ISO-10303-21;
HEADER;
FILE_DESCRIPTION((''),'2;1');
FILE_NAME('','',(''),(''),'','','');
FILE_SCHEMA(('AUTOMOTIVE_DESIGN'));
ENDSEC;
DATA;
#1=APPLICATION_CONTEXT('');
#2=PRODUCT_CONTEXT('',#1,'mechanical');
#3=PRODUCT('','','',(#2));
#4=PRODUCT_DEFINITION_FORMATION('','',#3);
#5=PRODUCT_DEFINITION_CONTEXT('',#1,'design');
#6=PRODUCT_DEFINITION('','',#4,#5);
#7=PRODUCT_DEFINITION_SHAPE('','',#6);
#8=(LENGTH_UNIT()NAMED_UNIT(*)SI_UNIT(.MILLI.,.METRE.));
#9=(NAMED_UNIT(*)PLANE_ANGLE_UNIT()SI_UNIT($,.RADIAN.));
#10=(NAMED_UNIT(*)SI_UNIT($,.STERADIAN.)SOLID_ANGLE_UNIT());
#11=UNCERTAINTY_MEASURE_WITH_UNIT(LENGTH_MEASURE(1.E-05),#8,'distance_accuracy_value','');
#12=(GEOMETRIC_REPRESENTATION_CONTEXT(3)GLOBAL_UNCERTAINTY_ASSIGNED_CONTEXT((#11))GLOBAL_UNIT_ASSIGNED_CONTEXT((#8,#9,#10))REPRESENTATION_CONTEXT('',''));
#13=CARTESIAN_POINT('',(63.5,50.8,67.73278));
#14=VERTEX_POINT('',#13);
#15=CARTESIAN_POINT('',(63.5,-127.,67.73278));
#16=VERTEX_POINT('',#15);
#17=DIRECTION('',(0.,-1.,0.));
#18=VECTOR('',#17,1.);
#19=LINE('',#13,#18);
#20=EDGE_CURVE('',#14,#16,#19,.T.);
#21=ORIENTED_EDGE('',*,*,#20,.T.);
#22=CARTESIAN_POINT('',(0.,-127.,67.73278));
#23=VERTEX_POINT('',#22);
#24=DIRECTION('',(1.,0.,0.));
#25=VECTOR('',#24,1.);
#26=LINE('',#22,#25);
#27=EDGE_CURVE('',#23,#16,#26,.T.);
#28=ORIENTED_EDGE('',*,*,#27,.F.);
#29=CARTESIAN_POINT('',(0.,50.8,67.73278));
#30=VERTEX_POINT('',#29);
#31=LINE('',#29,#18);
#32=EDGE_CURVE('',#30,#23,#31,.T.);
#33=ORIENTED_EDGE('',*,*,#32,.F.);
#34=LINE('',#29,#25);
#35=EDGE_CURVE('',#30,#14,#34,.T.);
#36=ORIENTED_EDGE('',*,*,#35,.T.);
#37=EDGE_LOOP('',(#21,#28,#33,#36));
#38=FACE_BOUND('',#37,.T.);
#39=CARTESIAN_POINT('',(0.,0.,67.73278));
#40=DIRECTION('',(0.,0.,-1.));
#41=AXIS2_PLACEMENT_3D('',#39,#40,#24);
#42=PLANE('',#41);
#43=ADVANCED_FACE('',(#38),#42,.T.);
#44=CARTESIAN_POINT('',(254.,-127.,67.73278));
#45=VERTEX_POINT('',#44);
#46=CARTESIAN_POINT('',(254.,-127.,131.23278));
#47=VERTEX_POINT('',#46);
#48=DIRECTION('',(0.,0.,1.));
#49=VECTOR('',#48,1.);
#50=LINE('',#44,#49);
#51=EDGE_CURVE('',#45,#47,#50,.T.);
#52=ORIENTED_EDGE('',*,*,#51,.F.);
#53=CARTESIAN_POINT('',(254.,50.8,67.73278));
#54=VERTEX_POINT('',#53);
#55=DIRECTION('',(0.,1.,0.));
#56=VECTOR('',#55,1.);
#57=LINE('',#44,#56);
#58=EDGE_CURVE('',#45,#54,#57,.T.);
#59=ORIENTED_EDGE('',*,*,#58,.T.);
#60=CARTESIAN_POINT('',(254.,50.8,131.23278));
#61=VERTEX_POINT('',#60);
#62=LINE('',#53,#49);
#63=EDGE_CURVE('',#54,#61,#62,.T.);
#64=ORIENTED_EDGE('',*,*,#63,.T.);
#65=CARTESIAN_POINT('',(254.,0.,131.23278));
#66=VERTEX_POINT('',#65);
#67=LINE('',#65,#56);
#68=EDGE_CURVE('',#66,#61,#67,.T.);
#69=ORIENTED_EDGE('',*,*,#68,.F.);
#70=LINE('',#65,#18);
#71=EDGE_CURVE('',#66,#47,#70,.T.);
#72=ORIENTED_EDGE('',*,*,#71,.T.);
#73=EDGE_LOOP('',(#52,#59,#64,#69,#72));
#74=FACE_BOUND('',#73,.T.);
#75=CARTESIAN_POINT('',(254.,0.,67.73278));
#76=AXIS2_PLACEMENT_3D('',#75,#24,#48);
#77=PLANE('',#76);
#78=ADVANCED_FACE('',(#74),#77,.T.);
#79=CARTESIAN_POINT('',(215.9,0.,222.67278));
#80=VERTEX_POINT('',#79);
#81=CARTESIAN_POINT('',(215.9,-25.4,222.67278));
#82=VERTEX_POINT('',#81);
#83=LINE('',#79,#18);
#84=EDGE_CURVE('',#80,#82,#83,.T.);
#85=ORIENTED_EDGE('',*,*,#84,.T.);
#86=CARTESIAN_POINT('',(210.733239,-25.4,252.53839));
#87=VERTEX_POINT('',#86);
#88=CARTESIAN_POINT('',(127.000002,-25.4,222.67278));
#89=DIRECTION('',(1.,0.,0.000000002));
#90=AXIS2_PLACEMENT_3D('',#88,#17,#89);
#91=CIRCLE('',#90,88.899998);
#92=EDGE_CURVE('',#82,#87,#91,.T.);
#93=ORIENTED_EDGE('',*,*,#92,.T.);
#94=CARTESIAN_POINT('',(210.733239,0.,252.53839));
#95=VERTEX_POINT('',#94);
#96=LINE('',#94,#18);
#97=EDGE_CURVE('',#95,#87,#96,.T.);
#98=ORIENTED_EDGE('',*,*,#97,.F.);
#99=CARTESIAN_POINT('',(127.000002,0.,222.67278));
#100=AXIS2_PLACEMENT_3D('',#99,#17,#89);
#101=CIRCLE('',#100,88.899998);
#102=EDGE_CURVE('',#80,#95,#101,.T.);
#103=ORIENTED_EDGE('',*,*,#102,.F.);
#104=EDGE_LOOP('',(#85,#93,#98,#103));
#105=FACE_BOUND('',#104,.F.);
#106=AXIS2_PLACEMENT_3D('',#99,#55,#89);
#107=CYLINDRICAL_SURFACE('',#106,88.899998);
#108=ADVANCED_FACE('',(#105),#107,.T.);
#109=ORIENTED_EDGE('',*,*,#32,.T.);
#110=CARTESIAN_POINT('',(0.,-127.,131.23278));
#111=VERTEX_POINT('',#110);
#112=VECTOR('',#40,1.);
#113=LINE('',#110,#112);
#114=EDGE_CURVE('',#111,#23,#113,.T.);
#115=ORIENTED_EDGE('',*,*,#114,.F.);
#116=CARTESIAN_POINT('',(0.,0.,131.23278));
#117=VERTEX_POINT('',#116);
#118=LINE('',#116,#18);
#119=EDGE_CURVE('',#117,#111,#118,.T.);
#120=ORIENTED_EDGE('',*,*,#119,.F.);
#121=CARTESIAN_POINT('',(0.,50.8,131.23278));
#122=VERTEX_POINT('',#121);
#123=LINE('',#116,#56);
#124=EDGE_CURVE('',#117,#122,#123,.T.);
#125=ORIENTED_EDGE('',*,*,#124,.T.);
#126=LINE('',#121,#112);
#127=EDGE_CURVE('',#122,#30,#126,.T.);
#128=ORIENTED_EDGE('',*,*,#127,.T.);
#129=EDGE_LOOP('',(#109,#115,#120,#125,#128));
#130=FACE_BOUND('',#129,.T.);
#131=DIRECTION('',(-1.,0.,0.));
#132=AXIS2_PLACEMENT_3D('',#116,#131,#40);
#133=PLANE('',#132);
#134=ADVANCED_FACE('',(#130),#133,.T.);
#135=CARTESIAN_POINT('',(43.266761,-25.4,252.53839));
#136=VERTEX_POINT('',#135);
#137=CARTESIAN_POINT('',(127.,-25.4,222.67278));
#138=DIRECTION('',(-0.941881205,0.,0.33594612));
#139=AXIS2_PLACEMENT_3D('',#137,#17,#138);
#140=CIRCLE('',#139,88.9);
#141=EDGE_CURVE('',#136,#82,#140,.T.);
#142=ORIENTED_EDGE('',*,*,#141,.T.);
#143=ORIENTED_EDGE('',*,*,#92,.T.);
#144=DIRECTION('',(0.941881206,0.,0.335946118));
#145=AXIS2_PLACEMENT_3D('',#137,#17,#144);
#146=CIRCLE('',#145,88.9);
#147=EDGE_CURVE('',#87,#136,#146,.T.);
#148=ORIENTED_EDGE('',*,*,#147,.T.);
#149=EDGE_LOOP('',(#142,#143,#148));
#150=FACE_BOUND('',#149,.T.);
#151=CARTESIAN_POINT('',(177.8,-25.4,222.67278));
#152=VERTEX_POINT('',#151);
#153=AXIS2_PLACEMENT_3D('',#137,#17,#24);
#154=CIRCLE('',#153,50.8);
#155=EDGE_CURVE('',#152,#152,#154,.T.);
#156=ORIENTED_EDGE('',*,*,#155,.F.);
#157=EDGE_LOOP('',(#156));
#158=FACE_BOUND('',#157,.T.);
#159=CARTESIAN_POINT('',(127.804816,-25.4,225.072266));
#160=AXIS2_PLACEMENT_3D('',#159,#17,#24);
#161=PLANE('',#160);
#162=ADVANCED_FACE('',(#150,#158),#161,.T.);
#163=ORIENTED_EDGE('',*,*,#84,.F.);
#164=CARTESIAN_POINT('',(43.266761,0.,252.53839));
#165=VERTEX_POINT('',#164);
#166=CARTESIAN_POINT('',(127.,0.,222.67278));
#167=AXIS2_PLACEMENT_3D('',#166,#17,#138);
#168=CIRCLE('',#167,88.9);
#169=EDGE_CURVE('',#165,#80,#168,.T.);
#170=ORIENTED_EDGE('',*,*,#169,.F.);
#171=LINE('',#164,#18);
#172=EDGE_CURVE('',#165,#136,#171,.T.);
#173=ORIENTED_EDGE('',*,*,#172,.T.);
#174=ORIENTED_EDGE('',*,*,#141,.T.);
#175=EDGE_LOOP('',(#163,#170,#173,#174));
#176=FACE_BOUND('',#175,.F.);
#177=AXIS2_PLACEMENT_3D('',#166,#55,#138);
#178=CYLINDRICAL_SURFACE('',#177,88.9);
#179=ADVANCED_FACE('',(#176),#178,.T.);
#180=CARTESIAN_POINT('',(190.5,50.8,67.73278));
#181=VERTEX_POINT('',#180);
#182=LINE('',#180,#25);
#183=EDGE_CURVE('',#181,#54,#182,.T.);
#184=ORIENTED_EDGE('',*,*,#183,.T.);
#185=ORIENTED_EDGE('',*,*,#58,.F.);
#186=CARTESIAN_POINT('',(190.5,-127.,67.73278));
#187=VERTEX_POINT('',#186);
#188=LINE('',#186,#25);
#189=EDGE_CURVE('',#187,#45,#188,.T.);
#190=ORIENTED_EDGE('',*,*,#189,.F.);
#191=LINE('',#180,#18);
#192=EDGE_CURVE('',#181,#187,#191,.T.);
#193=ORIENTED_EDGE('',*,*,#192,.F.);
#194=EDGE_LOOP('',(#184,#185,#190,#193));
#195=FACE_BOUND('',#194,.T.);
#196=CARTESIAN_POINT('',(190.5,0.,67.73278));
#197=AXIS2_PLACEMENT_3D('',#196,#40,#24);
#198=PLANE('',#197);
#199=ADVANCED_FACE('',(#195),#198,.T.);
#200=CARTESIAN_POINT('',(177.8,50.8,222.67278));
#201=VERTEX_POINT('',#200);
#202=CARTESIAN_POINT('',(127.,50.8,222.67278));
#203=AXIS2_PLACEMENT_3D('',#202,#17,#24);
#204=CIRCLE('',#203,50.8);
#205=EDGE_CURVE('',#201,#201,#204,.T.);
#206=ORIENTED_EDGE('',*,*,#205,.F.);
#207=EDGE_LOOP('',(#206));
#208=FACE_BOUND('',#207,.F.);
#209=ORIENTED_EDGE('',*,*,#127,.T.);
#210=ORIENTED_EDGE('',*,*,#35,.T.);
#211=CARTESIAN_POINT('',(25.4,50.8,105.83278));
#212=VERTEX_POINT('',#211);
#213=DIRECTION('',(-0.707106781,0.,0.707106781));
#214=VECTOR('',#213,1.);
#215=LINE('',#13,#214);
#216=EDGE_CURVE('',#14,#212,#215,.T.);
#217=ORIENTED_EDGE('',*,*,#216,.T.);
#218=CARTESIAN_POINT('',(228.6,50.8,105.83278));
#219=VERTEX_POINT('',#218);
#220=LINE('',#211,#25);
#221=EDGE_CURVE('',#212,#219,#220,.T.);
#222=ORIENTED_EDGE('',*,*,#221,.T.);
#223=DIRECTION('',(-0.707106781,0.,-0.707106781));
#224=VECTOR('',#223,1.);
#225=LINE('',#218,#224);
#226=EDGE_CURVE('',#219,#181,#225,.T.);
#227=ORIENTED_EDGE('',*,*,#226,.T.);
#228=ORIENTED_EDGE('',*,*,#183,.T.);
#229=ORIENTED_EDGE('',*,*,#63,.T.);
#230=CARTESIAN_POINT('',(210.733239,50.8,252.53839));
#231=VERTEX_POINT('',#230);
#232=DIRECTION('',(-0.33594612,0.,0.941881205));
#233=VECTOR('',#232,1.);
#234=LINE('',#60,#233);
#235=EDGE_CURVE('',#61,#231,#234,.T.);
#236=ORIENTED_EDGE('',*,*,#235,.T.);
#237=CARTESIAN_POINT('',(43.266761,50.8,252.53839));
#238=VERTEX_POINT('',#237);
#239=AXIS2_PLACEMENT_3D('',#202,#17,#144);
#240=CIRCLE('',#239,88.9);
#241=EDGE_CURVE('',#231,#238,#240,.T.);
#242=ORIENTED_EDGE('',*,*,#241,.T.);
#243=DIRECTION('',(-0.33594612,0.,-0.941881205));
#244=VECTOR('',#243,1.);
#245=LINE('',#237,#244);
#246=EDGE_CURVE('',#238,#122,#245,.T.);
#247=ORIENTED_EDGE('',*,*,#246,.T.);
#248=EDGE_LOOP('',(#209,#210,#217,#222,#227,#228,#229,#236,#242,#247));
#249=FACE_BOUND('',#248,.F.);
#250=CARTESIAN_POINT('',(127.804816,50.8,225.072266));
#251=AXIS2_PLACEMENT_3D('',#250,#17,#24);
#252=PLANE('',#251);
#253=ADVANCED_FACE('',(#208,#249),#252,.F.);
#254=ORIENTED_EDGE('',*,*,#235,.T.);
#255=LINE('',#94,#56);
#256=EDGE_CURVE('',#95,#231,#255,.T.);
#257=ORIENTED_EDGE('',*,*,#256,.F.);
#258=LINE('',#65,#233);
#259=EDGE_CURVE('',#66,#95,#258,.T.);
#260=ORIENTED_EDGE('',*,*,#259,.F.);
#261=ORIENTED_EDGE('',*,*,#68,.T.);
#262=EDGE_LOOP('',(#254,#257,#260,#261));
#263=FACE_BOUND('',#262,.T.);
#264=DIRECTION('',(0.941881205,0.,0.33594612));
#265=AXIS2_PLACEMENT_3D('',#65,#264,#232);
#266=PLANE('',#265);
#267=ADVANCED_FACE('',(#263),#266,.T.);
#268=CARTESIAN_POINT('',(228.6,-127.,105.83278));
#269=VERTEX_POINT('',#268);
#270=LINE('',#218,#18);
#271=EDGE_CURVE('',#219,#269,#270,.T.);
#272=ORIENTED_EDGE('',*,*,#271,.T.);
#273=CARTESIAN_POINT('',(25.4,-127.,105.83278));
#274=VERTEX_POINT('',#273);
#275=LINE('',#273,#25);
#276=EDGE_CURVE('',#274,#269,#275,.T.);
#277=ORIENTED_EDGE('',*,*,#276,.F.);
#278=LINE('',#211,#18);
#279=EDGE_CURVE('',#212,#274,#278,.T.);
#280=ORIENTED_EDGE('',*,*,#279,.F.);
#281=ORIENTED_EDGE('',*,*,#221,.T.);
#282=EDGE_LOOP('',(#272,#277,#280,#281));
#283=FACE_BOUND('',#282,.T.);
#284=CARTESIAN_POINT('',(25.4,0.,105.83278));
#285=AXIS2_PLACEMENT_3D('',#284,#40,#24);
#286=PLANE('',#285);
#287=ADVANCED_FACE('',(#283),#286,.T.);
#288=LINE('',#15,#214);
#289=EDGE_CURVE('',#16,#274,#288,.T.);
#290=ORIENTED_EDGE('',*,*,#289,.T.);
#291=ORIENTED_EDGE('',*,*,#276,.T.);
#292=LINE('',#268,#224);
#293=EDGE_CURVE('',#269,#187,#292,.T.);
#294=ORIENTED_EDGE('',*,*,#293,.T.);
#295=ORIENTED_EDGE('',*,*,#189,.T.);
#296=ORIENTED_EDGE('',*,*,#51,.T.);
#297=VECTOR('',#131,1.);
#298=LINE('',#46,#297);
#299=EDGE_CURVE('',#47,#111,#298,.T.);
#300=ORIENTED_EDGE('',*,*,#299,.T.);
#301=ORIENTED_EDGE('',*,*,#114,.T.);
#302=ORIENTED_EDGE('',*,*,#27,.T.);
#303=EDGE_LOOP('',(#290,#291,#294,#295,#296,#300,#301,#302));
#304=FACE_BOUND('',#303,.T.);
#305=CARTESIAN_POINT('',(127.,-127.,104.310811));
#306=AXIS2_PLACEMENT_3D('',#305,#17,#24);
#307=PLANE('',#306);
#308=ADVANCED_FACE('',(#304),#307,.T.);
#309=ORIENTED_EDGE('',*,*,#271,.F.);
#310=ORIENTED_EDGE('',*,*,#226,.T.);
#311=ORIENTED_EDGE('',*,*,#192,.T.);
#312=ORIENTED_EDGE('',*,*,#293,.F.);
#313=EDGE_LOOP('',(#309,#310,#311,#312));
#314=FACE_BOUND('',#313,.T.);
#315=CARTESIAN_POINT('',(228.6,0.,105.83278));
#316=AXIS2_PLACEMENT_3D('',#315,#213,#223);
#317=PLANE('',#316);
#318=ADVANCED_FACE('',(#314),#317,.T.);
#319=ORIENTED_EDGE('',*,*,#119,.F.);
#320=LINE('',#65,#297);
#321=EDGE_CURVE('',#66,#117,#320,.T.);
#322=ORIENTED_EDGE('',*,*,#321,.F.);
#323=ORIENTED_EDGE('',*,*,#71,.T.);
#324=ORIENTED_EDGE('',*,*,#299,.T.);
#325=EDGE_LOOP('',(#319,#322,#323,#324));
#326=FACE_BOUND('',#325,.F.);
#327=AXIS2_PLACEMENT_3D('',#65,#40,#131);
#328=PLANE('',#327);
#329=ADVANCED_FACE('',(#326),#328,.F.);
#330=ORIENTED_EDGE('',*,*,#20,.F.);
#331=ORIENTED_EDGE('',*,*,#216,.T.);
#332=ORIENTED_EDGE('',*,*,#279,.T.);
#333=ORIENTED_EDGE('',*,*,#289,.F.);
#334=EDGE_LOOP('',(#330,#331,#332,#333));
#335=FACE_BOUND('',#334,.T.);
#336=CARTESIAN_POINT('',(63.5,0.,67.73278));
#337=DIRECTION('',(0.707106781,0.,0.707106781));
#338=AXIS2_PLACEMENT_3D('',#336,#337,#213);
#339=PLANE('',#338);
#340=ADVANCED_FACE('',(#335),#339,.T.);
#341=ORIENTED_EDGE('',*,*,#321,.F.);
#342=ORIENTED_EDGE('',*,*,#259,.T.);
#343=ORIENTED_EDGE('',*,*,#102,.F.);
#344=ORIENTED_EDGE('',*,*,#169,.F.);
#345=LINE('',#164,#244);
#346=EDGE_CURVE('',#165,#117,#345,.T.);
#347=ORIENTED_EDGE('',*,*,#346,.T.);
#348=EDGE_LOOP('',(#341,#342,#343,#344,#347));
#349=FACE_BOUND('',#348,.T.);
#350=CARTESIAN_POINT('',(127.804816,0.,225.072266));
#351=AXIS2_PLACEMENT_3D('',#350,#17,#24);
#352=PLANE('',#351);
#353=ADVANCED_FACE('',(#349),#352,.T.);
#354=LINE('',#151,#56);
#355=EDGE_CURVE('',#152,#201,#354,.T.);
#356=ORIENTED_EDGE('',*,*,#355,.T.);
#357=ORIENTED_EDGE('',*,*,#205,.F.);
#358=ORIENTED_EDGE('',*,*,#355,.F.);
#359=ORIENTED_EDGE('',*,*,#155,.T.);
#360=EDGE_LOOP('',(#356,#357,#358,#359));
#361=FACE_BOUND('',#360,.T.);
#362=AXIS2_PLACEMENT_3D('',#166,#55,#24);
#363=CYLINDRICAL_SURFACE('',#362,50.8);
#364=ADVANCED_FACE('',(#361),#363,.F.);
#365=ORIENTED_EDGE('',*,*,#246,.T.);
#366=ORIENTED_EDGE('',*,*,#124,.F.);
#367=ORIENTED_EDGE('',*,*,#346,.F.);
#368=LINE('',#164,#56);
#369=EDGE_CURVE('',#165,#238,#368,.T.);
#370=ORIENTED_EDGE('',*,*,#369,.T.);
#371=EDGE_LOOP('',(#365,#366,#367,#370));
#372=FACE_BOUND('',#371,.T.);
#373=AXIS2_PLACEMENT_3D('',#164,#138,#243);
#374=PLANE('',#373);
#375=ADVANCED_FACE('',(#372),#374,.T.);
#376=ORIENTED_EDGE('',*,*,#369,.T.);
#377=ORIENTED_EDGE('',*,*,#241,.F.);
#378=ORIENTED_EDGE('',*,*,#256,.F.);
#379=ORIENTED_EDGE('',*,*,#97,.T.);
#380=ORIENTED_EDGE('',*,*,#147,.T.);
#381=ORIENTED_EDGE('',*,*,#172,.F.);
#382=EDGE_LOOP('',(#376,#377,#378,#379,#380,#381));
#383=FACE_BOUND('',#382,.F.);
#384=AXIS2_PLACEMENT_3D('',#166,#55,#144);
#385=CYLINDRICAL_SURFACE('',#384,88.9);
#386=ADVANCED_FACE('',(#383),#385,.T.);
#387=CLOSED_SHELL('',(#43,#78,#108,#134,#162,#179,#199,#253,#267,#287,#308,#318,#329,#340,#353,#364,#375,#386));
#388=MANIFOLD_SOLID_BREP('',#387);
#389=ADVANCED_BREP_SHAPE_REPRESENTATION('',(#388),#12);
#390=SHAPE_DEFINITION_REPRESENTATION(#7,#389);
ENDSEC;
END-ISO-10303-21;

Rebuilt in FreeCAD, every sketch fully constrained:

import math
import FreeCAD as App
import Part
import Sketcher

V = App.Vector
Q = App.Units.Quantity


def add_polygon(sketch, points):
    """Adds a closed chain of lines whose ends are joined by coincident constraints."""
    first, n = sketch.GeometryCount, len(points)
    for a, b in zip(points, points[1:] + points[:1]):
        sketch.addGeometry(Part.LineSegment(App.Vector(*a, 0), App.Vector(*b, 0)), False)
    for i in range(n):
        sketch.addConstraint(Sketcher.Constraint("Coincident", first + i, 2, first + (i + 1) % n, 1))

doc = App.newDocument("Part")
body = doc.addObject("PartDesign::Body", "Body")

sketch1 = body.newObject("Sketcher::SketchObject", "Sketch")
sketch1.AttachmentSupport = (doc.getObject("XZ_Plane"), [""])
sketch1.MapMode = "FlatFace"
add_polygon(sketch1, [(254, 68), (254, 131), (0, 131), (0, 68), (64, 68), (25, 106), (229, 106), (190, 68)])
sketch1.addConstraint([
    Sketcher.Constraint("Vertical", 0),
    Sketcher.Constraint("Horizontal", 1),
    Sketcher.Constraint("Vertical", 2),
    Sketcher.Constraint("Horizontal", 3),
    Sketcher.Constraint("Horizontal", 5),
    Sketcher.Constraint("Horizontal", 7),
    Sketcher.Constraint("PointOnObject", 1, 2, -2),
    Sketcher.Constraint("Perpendicular", 4, 6),
    Sketcher.Constraint("Horizontal", 3, 2, 6, 2),
    Sketcher.Constraint("Equal", 3, 7),
    Sketcher.Constraint("Equal", 7, 0),
    Sketcher.Constraint("Equal", 4, 6),
    Sketcher.Constraint("DistanceX", 1, 2, 1, 1, Q("10 in")),
    Sketcher.Constraint("DistanceX", 5, 1, 5, 2, Q("8 in")),
    Sketcher.Constraint("DistanceX", 3, 1, 3, 2, Q("2.5 in")),
    Sketcher.Constraint("DistanceY", -1, 1, 0, 2, 131.23278),
])
pad1 = body.newObject("PartDesign::Pad", "Pad")
pad1.Profile = sketch1
pad1.Length = Q("5 in")

sketch2 = body.newObject("Sketcher::SketchObject", "Sketch001")
sketch2.AttachmentSupport = (doc.getObject("XZ_Plane"), [""])
sketch2.MapMode = "FlatFace"
sketch2.addGeometry([
    Part.ArcOfCircle(Part.Circle(V(127, 223, 0), V(0, 0, 1), 89), math.radians(20), math.radians(160)),
    Part.LineSegment(V(43, 253, 0), V(0, 131, 0)),
    Part.LineSegment(V(0, 131, 0), V(0, 68, 0)),
    Part.LineSegment(V(0, 68, 0), V(64, 68, 0)),
    Part.LineSegment(V(64, 68, 0), V(25, 106, 0)),
    Part.LineSegment(V(25, 106, 0), V(229, 106, 0)),
    Part.LineSegment(V(229, 106, 0), V(190, 68, 0)),
    Part.LineSegment(V(190, 68, 0), V(254, 68, 0)),
    Part.LineSegment(V(254, 68, 0), V(254, 131, 0)),
    Part.LineSegment(V(254, 131, 0), V(211, 253, 0)),
    Part.Circle(V(127, 223, 0), V(0, 0, 1), 51),
], False)
sketch2.addConstraint([
    Sketcher.Constraint("Tangent", 0, 2, 1, 1),
    Sketcher.Constraint("Coincident", 1, 2, 2, 1),
    Sketcher.Constraint("Coincident", 2, 2, 3, 1),
    Sketcher.Constraint("Coincident", 3, 2, 4, 1),
    Sketcher.Constraint("Coincident", 4, 2, 5, 1),
    Sketcher.Constraint("Coincident", 5, 2, 6, 1),
    Sketcher.Constraint("Coincident", 6, 2, 7, 1),
    Sketcher.Constraint("Coincident", 7, 2, 8, 1),
    Sketcher.Constraint("Coincident", 8, 2, 9, 1),
    Sketcher.Constraint("Tangent", 9, 2, 0, 1),
    Sketcher.Constraint("Vertical", 2),
    Sketcher.Constraint("Horizontal", 3),
    Sketcher.Constraint("Horizontal", 5),
    Sketcher.Constraint("Horizontal", 7),
    Sketcher.Constraint("Vertical", 8),
    Sketcher.Constraint("Coincident", 10, 3, 0, 3),
    Sketcher.Constraint("PointOnObject", 1, 2, -2),
    Sketcher.Constraint("Perpendicular", 4, 6),
    Sketcher.Constraint("Horizontal", 3, 2, 6, 2),
    Sketcher.Constraint("Horizontal", 1, 2, 8, 2),
    Sketcher.Constraint("Horizontal", 0, 2, 9, 2),
    Sketcher.Constraint("Equal", 3, 7),
    Sketcher.Constraint("Equal", 7, 2),
    Sketcher.Constraint("Equal", 4, 6),
    Sketcher.Constraint("Diameter", 10, Q("4 in")),
    Sketcher.Constraint("Radius", 0, Q("3.5 in")),
    Sketcher.Constraint("DistanceX", 5, 1, 5, 2, Q("8 in")),
    Sketcher.Constraint("DistanceX", 3, 1, 3, 2, Q("2.5 in")),
    Sketcher.Constraint("DistanceX", -1, 1, 0, 3, Q("5 in")),
    Sketcher.Constraint("DistanceY", 1, 2, 10, 3, Q("3.6 in")),
    Sketcher.Constraint("DistanceY", -1, 1, 0, 3, 222.67278),
])
pad2 = body.newObject("PartDesign::Pad", "Pad001")
pad2.Profile = sketch2
pad2.Length = Q("2 in")
pad2.Reversed = True

sketch3 = body.newObject("Sketcher::SketchObject", "Sketch002")
sketch3.AttachmentSupport = (doc.getObject("XZ_Plane"), [""])
sketch3.MapMode = "FlatFace"
sketch3.addGeometry([
    Part.ArcOfCircle(Part.Circle(V(127, 223, 0), V(0, 0, 1), 89), math.radians(0), math.radians(19.63)),
    Part.ArcOfCircle(Part.Circle(V(127, 223, 0), V(0, 0, 1), 89), math.radians(20), math.radians(160)),
    Part.ArcOfCircle(Part.Circle(V(127, 223, 0), V(0, 0, 1), 89), math.radians(160), math.radians(360)),
    Part.Circle(V(127, 223, 0), V(0, 0, 1), 51),
], False)
sketch3.addConstraint([
    Sketcher.Constraint("Tangent", 0, 2, 1, 1),
    Sketcher.Constraint("Tangent", 1, 2, 2, 1),
    Sketcher.Constraint("Tangent", 2, 2, 0, 1),
    Sketcher.Constraint("Coincident", 3, 3, 0, 3),
    Sketcher.Constraint("Horizontal", 0, 2, 1, 2),
    Sketcher.Constraint("Horizontal", 3, 3, 2, 2),
    Sketcher.Constraint("Diameter", 3, Q("4 in")),
    Sketcher.Constraint("Radius", 0, Q("3.4999999 in")),
    Sketcher.Constraint("DistanceX", -1, 1, 0, 3, Q("5.0000001 in")),
    Sketcher.Constraint("DistanceY", -1, 1, 0, 3, 222.67278),
    Sketcher.Constraint("DistanceX", -1, 1, 0, 2, 210.733239),
])
pad3 = body.newObject("PartDesign::Pad", "Pad002")
pad3.Profile = sketch3
pad3.Length = Q("1 in")

doc.recompute()
